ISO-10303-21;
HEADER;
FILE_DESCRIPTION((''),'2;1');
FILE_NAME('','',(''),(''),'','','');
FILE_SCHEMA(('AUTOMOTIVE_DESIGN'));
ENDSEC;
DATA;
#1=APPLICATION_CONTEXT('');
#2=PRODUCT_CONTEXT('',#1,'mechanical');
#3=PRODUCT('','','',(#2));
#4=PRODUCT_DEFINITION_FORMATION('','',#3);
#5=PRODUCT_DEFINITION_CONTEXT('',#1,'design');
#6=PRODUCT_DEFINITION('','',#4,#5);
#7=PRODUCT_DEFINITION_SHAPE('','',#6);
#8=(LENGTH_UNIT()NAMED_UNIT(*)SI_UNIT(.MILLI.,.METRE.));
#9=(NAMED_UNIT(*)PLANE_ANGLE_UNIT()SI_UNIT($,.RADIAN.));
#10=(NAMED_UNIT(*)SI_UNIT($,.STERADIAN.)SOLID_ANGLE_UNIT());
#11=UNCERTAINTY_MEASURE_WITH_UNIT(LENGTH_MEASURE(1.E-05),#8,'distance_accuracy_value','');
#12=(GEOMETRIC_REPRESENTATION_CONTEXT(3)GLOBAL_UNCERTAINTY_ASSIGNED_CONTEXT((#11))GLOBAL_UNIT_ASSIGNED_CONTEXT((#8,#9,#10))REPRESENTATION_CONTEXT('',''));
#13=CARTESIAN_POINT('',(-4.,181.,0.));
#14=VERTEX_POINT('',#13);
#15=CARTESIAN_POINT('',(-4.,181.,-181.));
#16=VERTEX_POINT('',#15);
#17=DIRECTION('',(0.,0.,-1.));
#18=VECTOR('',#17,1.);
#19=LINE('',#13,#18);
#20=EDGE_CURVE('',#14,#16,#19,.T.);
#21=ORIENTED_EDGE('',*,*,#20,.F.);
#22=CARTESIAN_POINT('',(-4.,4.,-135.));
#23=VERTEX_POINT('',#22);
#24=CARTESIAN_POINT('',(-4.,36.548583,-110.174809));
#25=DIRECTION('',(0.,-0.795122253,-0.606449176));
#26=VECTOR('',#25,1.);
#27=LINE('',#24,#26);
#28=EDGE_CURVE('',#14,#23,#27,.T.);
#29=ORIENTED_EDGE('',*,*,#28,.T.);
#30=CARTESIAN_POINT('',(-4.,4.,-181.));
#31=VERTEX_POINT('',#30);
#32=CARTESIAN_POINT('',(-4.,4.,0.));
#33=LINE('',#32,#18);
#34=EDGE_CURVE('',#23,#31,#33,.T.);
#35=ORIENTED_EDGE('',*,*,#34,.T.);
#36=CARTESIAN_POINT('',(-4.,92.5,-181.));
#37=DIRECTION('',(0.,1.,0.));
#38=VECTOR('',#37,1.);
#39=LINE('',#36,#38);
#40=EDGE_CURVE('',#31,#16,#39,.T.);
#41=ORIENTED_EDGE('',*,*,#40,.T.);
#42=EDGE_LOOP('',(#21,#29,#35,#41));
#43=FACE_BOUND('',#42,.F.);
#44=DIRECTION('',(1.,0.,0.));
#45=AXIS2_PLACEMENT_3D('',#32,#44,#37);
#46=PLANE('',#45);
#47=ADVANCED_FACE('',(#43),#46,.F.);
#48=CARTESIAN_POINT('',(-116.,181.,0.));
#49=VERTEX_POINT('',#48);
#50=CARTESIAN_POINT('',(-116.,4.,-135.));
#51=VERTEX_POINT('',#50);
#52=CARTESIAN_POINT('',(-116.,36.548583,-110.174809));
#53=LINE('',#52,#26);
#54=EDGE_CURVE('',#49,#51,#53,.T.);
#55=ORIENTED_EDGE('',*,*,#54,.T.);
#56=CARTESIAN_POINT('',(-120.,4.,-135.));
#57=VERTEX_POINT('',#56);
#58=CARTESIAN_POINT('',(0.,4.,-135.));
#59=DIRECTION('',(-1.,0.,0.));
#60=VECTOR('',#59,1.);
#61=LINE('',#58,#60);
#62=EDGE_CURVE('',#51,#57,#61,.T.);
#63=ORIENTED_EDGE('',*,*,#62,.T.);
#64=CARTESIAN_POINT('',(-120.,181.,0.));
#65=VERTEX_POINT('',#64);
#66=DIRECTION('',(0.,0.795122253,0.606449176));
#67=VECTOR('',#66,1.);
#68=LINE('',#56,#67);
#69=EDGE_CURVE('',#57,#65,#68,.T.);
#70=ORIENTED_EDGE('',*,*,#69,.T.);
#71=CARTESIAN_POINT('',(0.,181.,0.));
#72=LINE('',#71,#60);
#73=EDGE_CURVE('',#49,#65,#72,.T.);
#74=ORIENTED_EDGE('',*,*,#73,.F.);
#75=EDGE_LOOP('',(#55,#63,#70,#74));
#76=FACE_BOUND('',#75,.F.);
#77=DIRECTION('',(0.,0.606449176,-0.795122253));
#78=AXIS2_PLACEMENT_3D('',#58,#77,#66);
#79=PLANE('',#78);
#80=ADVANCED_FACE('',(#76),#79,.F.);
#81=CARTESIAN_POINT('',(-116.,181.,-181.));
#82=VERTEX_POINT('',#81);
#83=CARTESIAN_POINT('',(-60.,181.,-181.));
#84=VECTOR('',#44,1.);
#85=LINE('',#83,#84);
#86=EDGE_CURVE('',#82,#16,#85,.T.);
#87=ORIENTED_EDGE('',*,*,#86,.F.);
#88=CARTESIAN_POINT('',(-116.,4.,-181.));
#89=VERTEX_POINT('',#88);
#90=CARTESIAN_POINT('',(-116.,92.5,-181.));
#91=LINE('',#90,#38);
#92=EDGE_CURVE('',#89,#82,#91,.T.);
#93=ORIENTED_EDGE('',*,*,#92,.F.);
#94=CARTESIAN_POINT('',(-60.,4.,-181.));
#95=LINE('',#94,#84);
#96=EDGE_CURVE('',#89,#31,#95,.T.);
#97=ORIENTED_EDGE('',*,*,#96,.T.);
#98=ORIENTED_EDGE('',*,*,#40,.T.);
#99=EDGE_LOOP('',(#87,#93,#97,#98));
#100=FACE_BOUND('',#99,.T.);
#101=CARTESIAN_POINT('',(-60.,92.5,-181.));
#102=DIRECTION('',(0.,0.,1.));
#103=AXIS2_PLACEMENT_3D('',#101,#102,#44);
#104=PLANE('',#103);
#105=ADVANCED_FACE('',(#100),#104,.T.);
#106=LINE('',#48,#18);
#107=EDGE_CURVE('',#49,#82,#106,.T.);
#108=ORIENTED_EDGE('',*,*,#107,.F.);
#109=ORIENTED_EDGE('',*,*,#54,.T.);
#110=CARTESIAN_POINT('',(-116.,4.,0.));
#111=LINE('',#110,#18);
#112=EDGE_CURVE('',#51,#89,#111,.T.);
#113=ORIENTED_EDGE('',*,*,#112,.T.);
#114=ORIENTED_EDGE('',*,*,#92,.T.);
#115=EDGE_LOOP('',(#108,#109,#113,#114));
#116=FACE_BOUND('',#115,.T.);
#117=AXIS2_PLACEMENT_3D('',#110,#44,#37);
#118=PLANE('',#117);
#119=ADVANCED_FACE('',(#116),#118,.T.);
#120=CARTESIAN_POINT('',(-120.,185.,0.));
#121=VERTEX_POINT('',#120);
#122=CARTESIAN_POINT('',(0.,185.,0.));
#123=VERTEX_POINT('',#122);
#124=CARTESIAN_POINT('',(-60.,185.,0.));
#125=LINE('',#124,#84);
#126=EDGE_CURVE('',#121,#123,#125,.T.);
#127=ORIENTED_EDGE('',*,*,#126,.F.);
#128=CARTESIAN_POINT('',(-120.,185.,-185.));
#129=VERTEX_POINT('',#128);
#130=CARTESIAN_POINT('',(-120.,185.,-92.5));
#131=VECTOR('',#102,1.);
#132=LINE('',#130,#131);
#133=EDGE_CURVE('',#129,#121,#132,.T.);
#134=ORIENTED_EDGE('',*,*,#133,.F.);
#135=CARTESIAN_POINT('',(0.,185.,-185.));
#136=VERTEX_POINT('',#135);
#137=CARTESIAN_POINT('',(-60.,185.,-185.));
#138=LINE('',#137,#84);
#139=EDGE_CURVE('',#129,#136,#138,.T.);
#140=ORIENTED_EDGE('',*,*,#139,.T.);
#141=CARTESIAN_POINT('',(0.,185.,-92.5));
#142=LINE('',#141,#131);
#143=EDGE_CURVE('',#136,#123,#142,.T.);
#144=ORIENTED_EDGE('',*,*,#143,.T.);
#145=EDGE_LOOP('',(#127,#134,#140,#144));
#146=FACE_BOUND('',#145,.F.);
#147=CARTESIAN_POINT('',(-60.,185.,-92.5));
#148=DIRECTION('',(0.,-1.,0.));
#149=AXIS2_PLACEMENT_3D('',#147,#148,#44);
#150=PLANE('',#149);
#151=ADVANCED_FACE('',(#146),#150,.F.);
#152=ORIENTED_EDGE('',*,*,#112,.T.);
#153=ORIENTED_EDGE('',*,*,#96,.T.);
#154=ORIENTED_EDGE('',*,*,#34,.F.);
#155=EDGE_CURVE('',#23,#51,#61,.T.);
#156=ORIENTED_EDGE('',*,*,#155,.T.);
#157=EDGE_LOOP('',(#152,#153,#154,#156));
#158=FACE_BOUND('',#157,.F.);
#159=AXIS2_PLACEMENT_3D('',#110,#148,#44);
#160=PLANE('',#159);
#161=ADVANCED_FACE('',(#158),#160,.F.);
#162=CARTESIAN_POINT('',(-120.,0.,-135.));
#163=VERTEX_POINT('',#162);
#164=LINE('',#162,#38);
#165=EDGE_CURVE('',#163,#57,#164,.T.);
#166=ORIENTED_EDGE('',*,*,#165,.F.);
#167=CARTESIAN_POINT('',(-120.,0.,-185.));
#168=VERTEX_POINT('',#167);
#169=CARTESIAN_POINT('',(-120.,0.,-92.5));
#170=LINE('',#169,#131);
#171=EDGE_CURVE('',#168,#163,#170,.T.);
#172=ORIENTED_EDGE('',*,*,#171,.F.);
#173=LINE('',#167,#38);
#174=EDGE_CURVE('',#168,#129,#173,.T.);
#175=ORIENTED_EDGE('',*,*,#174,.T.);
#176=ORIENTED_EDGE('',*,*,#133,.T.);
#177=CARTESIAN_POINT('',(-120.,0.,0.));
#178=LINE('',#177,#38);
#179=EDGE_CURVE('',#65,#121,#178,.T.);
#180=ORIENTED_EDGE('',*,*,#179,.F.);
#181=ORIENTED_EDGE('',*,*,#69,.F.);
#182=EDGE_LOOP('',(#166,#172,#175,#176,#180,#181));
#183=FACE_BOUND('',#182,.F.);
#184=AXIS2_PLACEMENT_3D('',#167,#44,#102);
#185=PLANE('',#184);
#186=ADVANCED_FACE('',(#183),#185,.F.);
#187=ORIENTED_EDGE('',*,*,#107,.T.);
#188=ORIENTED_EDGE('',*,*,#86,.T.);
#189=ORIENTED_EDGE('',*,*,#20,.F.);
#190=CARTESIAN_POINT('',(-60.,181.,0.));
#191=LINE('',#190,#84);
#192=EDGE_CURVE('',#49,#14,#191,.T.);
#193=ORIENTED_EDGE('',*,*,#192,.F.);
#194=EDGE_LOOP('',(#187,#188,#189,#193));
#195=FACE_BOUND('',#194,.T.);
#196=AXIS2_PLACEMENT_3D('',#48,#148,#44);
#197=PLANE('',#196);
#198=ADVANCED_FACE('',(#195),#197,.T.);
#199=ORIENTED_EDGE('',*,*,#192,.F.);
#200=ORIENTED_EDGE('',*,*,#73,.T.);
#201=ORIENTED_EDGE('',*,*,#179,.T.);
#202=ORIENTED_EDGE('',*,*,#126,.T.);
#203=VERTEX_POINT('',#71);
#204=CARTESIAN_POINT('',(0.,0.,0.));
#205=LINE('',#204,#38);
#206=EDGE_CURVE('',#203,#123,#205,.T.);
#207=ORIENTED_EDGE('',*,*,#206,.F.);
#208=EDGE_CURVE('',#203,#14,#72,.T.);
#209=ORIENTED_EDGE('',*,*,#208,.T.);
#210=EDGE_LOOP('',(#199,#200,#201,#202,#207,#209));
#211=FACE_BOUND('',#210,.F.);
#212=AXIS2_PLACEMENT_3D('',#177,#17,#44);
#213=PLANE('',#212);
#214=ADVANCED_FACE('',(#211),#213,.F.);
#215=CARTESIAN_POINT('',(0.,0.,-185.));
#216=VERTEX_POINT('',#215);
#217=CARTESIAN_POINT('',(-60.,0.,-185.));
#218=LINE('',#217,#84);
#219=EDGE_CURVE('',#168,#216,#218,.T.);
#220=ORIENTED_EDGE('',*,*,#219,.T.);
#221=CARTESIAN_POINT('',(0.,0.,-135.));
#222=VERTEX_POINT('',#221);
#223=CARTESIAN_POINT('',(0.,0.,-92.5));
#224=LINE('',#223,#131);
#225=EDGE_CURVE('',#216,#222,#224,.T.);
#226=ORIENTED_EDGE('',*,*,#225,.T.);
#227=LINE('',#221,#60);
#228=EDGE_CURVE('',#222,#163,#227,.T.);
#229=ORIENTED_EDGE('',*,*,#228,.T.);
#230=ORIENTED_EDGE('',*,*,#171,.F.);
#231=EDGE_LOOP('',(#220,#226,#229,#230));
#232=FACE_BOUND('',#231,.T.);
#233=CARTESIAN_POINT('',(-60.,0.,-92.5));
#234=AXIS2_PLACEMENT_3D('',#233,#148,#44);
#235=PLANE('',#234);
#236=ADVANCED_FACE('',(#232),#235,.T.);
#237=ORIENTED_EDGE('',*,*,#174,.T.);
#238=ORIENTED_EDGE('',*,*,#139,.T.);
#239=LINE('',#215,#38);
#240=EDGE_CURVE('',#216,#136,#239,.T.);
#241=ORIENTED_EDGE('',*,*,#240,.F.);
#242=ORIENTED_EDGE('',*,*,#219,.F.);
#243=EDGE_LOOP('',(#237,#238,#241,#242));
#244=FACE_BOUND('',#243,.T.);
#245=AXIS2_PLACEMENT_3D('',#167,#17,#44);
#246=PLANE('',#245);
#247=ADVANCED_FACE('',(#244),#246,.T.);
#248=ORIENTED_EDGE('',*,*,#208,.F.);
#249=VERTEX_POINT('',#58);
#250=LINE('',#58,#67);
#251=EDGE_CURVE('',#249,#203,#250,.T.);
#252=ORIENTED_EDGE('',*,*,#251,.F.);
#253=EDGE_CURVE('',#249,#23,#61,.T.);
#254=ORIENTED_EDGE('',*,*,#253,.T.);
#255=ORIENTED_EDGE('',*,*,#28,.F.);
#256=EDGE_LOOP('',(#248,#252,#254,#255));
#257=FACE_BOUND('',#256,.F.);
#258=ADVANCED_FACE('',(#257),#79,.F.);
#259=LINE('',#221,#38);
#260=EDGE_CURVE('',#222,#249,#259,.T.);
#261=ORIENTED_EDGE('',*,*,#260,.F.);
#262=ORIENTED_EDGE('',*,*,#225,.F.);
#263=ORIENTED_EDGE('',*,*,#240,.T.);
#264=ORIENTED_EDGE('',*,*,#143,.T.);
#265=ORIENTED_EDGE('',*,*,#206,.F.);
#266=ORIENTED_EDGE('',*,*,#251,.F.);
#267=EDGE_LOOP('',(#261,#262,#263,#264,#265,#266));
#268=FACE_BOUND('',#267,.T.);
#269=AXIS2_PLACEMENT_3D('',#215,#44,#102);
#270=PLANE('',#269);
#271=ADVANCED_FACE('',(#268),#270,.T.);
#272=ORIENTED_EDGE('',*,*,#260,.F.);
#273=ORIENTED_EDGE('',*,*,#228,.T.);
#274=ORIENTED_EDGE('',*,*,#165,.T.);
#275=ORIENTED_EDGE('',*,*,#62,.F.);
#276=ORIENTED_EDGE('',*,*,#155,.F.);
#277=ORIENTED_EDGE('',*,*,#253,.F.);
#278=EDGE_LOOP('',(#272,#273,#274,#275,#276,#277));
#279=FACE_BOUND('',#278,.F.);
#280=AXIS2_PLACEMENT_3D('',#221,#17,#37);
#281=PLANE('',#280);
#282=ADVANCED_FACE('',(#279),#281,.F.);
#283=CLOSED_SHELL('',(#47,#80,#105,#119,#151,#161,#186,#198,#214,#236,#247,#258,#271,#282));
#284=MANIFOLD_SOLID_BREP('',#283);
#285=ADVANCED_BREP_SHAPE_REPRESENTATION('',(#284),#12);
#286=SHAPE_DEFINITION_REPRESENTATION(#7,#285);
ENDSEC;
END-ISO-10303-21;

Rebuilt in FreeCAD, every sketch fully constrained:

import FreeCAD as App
import Part
import Sketcher

V = App.Vector
Q = App.Units.Quantity


def add_polygon(sketch, points):
    """Adds a closed chain of lines whose ends are joined by coincident constraints."""
    first, n = sketch.GeometryCount, len(points)
    for a, b in zip(points, points[1:] + points[:1]):
        sketch.addGeometry(Part.LineSegment(App.Vector(*a, 0), App.Vector(*b, 0)), False)
    for i in range(n):
        sketch.addConstraint(Sketcher.Constraint("Coincident", first + i, 2, first + (i + 1) % n, 1))

doc = App.newDocument("Part")
params = doc.addObject("Spreadsheet::Sheet", "Params")
for row, (alias, value) in enumerate([
    ("sketch1_width", "120 mm"),
    ("sketch1_height", "185 mm"),
    ("pad1_length", "185 mm"),
    ("sketch2_width", "181 mm"),
    ("sketch2_width2", "4 mm"),
    ("sketch2_height", "135 mm"),
    ("sketch3_width", "112 mm"),
    ("sketch3_height", "177 mm"),
    ("pocket2_length", "181 mm"),
], start=1):
    params.set(f"A{row}", alias)
    params.set(f"B{row}", "=" + value)
    params.setAlias(f"B{row}", alias)

body = doc.addObject("PartDesign::Body", "Body")

sketch1 = doc.addObject("Sketcher::SketchObject", "Sketch")
body.addObject(sketch1)
sketch1.AttachmentSupport = (doc.XZ_Plane, [""])
sketch1.MapMode = "FlatFace"
add_polygon(sketch1, [(-120, 0), (-120, -185), (0, -185), (0, 0)])
sketch1.addConstraint([
    Sketcher.Constraint("Vertical", 0),
    Sketcher.Constraint("Horizontal", 1),
    Sketcher.Constraint("Vertical", 2),
    Sketcher.Constraint("Horizontal", 3),
    Sketcher.Constraint("Coincident", 2, 2, -1, 1),
    Sketcher.Constraint("DistanceX", 1, 1, 1, 2, Q("120 mm")),
    Sketcher.Constraint("DistanceY", 0, 2, 0, 1, Q("185 mm")),
])
sketch1.setExpression("Constraints[9]", "Params.sketch1_width")
sketch1.setExpression("Constraints[10]", "Params.sketch1_height")
pad1 = doc.addObject("PartDesign::Pad", "Pad")
body.addObject(pad1)
pad1.Profile = sketch1
pad1.setExpression("Length", "Params.pad1_length")
pad1.Reversed = True

sketch2 = doc.addObject("Sketcher::SketchObject", "Sketch001")
body.addObject(sketch2)
sketch2.AttachmentSupport = (doc.YZ_Plane, [""])
sketch2.MapMode = "FlatFace"
add_polygon(sketch2, [(4, -135), (181, 0), (0, 0), (0, -135)])
sketch2.addConstraint([
    Sketcher.Constraint("Horizontal", 1),
    Sketcher.Constraint("Vertical", 2),
    Sketcher.Constraint("Horizontal", 3),
    Sketcher.Constraint("Coincident", 1, 2, -1, 1),
    Sketcher.Constraint("DistanceX", 1, 2, 1, 1, Q("181 mm")),
    Sketcher.Constraint("DistanceX", 3, 1, 3, 2, Q("4 mm")),
    Sketcher.Constraint("DistanceY", 2, 2, 2, 1, Q("135 mm")),
])
sketch2.setExpression("Constraints[8]", "Params.sketch2_width")
sketch2.setExpression("Constraints[9]", "Params.sketch2_width2")
sketch2.setExpression("Constraints[10]", "Params.sketch2_height")
pocket1 = doc.addObject("PartDesign::Pocket", "Pocket")
body.addObject(pocket1)
pocket1.Profile = sketch2
pocket1.Type = "ThroughAll"

sketch3 = doc.addObject("Sketcher::SketchObject", "Sketch002")
body.addObject(sketch3)
sketch3.AttachmentSupport = (doc.XY_Plane, [""])
sketch3.MapMode = "FlatFace"
add_polygon(sketch3, [(-116, 181), (-116, 4), (-4, 4), (-4, 181)])
sketch3.addConstraint([
    Sketcher.Constraint("Vertical", 0),
    Sketcher.Constraint("Horizontal", 1),
    Sketcher.Constraint("Vertical", 2),
    Sketcher.Constraint("Horizontal", 3),
    Sketcher.Constraint("DistanceX", 1, 1, 1, 2, Q("112 mm")),
    Sketcher.Constraint("DistanceY", 0, 2, 0, 1, Q("177 mm")),
    Sketcher.Constraint("DistanceX", 0, 2, -1, 1, Q("116 mm")),
    Sketcher.Constraint("DistanceY", -1, 1, 0, 2, Q("4 mm")),
])
sketch3.setExpression("Constraints[8]", "Params.sketch3_width")
sketch3.setExpression("Constraints[9]", "Params.sketch3_height")
pocket2 = doc.addObject("PartDesign::Pocket", "Pocket001")
body.addObject(pocket2)
pocket2.Profile = sketch3
pocket2.setExpression("Length", "Params.pocket2_length")

doc.recompute()
